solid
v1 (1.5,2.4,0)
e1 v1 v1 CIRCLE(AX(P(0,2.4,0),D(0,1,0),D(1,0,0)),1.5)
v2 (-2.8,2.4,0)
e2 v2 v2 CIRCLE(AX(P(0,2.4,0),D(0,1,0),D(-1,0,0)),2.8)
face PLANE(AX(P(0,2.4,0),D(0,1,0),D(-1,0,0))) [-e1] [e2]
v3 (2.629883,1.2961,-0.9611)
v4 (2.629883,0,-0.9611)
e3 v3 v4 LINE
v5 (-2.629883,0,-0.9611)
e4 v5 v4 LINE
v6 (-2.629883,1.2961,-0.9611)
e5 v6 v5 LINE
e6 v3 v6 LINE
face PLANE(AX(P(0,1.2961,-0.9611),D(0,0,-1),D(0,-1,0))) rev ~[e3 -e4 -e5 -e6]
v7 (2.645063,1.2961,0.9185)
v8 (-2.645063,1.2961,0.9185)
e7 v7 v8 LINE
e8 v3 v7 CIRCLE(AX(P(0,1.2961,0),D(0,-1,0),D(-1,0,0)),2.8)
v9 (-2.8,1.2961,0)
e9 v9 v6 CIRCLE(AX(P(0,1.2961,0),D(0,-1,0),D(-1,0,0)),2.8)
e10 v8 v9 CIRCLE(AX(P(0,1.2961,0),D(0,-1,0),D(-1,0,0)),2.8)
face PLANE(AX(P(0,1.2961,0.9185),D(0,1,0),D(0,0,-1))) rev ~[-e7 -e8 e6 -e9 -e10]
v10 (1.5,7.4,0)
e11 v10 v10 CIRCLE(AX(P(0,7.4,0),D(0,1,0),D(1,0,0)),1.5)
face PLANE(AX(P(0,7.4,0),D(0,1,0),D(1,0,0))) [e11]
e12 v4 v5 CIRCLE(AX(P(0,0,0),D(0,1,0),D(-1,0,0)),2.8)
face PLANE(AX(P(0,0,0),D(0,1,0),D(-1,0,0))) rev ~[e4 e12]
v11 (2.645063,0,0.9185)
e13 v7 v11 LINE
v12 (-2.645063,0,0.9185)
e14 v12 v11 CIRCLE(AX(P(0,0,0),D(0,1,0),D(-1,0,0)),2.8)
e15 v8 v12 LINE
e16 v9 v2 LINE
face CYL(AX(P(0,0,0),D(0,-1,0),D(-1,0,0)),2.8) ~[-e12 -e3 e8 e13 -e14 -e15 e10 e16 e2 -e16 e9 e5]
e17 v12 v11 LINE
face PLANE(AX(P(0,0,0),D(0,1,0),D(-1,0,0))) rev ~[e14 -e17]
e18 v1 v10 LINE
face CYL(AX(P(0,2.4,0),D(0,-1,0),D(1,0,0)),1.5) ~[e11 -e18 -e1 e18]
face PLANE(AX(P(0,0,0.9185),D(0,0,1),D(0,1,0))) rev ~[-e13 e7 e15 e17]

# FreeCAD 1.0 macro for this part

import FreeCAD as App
import Part
import Sketcher

doc = App.newDocument("Part")
body = doc.addObject("PartDesign::Body", "Body")

# Sketch on XZ plane
sketch1 = body.newObject("Sketcher::SketchObject", "Sketch")
sketch1.AttachmentSupport = (doc.getObject("XZ_Plane"), [""])
sketch1.MapMode = "FlatFace"
sketch1.addGeometry(Part.Circle(App.Vector(0, 0, 0), App.Vector(0, 0, 1), 2.8), False)
sketch1.addConstraint(Sketcher.Constraint("Coincident", 0, 3, -1, 1))
sketch1.addConstraint(Sketcher.Constraint("Diameter", 0, 5.6))
pad1 = body.newObject("PartDesign::Pad", "Pad")
pad1.Profile = sketch1
pad1.Length = 2.4
pad1.Reversed = True

# Sketch on YZ plane
sketch2 = body.newObject("Sketcher::SketchObject", "Sketch001")
sketch2.AttachmentSupport = (doc.getObject("YZ_Plane"), [""])
sketch2.MapMode = "FlatFace"
sketch2.addGeometry(Part.LineSegment(App.Vector(1.3, 0.9, 0), App.Vector(0, 0.9, 0)), False)
sketch2.addGeometry(Part.LineSegment(App.Vector(0, 0.9, 0), App.Vector(0, -1, 0)), False)
sketch2.addGeometry(Part.LineSegment(App.Vector(0, -1, 0), App.Vector(1.3, -1, 0)), False)
sketch2.addGeometry(Part.LineSegment(App.Vector(1.3, -1, 0), App.Vector(1.3, 0.9, 0)), False)
sketch2.addConstraint(Sketcher.Constraint("Coincident", 0, 2, 1, 1))
sketch2.addConstraint(Sketcher.Constraint("Coincident", 1, 2, 2, 1))
sketch2.addConstraint(Sketcher.Constraint("Coincident", 2, 2, 3, 1))
sketch2.addConstraint(Sketcher.Constraint("Coincident", 3, 2, 0, 1))
sketch2.addConstraint(Sketcher.Constraint("Horizontal", 0))
sketch2.addConstraint(Sketcher.Constraint("Vertical", 1))
sketch2.addConstraint(Sketcher.Constraint("Horizontal", 2))
sketch2.addConstraint(Sketcher.Constraint("Vertical", 3))
sketch2.addConstraint(Sketcher.Constraint("PointOnObject", 0, 2, -2))
sketch2.addConstraint(Sketcher.Constraint("DistanceX", 0, 2, 0, 1, 1.296))
sketch2.addConstraint(Sketcher.Constraint("DistanceY", 1, 2, 1, 1, 1.8796))
sketch2.addConstraint(Sketcher.Constraint("DistanceY", 1, 2, -1, 1, 0.961))
pocket1 = body.newObject("PartDesign::Pocket", "Pocket")
pocket1.Profile = sketch2
pocket1.Type = "ThroughAll"
pocket1.Midplane = True

# Sketch on XZ plane
sketch3 = body.newObject("Sketcher::SketchObject", "Sketch002")
sketch3.AttachmentSupport = (doc.getObject("XZ_Plane"), [""])
sketch3.MapMode = "FlatFace"
sketch3.AttachmentOffset = App.Placement(App.Vector(0, 0, -2.4), App.Rotation())
sketch3.addGeometry(Part.Circle(App.Vector(0, 0, 0), App.Vector(0, 0, 1), 1.5), False)
sketch3.addConstraint(Sketcher.Constraint("Coincident", 0, 3, -1, 1))
sketch3.addConstraint(Sketcher.Constraint("Diameter", 0, 3.0))
pad2 = body.newObject("PartDesign::Pad", "Pad001")
pad2.Profile = sketch3
pad2.Length = 5
pad2.Reversed = True

doc.recompute()
